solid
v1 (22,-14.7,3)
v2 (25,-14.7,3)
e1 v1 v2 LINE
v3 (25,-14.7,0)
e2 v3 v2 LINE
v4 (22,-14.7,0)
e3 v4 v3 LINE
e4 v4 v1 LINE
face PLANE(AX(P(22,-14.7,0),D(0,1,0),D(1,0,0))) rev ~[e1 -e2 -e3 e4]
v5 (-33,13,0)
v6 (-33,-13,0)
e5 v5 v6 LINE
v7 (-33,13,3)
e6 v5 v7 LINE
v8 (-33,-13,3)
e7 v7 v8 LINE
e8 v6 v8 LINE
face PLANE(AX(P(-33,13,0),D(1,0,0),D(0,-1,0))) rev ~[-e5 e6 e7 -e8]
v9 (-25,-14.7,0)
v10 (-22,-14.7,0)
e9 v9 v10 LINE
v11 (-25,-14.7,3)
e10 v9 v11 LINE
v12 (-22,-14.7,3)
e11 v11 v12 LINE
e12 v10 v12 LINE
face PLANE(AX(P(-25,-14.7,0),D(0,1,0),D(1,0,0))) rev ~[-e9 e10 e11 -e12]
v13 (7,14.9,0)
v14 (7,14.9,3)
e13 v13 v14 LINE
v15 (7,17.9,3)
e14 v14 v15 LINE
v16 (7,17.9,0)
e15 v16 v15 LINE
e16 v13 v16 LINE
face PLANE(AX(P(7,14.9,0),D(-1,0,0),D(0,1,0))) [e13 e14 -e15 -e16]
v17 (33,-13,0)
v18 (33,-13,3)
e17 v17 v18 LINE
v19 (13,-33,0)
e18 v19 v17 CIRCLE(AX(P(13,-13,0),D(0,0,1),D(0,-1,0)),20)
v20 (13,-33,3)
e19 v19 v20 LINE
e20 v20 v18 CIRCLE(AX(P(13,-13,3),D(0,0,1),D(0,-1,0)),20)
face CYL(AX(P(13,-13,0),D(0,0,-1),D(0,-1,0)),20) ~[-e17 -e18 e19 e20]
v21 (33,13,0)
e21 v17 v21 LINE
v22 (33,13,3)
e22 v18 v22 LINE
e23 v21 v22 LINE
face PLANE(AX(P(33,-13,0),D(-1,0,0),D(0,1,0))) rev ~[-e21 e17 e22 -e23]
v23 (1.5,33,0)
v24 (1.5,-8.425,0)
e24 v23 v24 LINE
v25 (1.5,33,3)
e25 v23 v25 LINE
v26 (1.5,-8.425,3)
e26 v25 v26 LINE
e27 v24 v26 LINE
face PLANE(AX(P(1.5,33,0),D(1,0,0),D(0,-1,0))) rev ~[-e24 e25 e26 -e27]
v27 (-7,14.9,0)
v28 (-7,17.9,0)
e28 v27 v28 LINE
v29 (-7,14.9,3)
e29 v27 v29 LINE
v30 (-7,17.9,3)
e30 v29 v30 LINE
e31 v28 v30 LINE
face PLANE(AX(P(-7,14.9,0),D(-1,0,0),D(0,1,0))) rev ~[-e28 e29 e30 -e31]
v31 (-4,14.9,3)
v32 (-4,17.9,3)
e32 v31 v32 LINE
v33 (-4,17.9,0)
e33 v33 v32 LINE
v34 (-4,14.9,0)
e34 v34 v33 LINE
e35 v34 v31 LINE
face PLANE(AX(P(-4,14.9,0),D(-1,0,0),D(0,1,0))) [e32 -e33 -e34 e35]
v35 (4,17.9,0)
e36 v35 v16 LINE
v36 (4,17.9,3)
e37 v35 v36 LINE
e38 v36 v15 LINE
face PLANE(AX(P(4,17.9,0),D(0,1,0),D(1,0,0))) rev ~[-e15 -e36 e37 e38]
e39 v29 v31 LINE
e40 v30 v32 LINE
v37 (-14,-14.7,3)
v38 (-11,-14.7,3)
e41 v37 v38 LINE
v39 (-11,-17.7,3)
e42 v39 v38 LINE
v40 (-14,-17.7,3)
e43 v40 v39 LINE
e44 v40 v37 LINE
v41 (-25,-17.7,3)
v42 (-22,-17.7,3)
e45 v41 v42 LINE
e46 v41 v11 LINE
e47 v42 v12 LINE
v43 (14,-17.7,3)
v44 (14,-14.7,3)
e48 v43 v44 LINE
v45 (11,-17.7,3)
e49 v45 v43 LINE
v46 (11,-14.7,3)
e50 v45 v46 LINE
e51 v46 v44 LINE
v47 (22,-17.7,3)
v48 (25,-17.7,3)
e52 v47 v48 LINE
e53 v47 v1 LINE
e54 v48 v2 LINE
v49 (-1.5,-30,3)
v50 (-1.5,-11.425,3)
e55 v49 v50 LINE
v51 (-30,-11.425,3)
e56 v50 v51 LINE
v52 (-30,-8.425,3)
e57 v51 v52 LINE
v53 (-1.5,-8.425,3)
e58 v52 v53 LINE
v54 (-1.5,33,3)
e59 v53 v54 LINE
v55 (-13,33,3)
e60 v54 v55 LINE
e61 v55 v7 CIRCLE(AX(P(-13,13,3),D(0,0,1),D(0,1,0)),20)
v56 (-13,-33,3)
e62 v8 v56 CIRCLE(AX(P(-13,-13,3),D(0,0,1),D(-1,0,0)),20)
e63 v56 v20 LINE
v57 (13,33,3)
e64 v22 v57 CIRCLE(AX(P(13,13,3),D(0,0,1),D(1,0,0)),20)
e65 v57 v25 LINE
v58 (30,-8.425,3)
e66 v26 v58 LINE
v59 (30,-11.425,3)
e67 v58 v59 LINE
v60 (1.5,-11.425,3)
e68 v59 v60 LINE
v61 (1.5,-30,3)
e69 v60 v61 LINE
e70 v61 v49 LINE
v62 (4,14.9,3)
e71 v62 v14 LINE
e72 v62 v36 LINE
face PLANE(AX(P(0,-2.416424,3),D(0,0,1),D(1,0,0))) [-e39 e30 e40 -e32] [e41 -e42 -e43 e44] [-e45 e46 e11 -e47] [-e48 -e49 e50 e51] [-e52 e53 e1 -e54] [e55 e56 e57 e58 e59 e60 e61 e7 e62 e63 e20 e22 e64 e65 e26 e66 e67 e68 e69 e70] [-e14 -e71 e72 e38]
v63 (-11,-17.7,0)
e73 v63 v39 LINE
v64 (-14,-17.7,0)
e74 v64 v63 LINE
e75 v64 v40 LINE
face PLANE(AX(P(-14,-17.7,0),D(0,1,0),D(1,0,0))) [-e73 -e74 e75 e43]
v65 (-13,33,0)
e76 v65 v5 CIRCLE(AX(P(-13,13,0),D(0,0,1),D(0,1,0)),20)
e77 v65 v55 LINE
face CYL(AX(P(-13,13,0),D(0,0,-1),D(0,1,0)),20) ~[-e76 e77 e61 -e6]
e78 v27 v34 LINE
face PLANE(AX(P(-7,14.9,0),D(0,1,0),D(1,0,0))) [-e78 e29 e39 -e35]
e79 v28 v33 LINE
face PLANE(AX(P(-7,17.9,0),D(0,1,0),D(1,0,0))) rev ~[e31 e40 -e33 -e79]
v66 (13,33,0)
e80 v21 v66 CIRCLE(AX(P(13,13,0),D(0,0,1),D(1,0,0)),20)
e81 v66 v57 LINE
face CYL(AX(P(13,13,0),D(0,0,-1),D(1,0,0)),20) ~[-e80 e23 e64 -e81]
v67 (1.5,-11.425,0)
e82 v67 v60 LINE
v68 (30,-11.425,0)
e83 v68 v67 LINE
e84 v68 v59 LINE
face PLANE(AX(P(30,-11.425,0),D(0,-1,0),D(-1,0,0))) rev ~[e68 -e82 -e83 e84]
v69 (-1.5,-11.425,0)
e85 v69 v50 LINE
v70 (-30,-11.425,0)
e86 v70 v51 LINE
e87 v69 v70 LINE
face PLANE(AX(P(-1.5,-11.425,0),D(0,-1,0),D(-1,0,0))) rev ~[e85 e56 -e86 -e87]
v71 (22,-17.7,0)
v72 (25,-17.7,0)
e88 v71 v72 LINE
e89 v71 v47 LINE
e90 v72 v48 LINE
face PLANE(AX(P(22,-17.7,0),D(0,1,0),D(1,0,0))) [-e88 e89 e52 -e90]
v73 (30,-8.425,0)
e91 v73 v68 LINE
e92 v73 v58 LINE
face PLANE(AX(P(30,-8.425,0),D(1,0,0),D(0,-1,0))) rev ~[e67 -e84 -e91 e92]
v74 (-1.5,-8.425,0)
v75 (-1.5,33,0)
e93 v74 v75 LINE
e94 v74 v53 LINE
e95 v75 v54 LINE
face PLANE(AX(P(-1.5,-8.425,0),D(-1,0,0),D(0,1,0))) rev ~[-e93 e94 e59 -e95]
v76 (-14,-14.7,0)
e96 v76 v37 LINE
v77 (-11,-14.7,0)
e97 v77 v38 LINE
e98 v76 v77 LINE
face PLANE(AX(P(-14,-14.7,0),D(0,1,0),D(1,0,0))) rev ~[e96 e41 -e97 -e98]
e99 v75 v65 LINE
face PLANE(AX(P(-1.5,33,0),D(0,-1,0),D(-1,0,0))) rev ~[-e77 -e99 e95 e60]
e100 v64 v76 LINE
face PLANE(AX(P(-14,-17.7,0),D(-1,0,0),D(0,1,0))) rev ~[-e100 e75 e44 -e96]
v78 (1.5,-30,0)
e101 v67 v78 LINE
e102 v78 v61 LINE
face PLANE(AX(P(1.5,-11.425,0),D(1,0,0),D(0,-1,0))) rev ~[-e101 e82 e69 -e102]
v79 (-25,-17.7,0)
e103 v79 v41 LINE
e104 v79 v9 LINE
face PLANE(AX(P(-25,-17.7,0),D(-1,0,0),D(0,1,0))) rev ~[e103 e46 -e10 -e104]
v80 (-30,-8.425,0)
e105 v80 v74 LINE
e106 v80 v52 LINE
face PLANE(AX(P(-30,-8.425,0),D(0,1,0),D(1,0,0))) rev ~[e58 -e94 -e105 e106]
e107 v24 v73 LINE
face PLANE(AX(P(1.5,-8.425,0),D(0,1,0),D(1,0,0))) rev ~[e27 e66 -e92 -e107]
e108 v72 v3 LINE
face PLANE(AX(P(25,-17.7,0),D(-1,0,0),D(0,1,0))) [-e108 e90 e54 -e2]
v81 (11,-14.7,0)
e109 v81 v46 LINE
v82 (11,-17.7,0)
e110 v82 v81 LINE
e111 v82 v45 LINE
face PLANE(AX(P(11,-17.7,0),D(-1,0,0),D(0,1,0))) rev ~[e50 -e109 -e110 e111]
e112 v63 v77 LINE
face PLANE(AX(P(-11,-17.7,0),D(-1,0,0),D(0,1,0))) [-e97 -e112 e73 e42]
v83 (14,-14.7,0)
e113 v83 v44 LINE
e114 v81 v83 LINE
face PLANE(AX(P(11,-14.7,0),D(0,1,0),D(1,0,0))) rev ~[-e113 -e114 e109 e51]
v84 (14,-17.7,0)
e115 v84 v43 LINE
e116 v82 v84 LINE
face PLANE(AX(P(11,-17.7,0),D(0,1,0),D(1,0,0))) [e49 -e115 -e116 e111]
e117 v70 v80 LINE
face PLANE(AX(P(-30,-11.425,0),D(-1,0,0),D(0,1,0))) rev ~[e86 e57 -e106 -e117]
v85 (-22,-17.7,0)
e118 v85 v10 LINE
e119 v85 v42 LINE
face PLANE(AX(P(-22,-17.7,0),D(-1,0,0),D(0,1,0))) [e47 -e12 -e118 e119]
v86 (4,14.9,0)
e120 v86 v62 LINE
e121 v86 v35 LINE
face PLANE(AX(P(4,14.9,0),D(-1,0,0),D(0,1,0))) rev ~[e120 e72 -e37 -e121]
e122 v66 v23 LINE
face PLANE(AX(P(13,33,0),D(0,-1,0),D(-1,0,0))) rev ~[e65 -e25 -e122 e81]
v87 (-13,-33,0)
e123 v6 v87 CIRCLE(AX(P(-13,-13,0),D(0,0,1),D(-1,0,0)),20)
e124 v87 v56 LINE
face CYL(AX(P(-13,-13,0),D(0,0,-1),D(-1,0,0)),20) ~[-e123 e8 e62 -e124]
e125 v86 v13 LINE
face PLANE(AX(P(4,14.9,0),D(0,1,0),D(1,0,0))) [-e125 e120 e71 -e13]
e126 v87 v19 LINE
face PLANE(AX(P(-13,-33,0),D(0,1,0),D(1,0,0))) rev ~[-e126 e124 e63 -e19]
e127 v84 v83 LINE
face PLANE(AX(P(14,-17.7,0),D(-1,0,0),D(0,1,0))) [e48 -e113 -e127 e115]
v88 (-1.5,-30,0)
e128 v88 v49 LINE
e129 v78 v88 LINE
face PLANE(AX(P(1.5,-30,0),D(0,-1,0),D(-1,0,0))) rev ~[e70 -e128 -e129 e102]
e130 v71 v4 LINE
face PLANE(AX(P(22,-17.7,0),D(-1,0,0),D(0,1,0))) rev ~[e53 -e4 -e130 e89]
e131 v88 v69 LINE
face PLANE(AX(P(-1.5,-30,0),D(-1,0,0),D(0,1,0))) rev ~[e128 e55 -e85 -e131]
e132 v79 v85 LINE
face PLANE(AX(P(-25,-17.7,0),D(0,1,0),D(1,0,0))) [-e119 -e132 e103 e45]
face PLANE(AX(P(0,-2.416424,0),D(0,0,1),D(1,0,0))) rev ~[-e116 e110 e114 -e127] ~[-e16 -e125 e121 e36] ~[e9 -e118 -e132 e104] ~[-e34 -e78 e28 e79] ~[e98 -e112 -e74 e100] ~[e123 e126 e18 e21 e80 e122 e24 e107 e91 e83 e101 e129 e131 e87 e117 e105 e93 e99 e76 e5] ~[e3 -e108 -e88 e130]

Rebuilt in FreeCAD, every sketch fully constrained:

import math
import FreeCAD as App
import Part
import Sketcher

doc = App.newDocument("Part")
body = doc.addObject("PartDesign::Body", "Body")

sketch1 = body.newObject("Sketcher::SketchObject", "Sketch")
sketch1.AttachmentSupport = (doc.getObject("XY_Plane"), [""])
sketch1.MapMode = "FlatFace"
sketch1.addGeometry([
    Part.LineSegment(App.Vector(-30, -11.425, 0), App.Vector(-30, -8.425, 0)),
    Part.LineSegment(App.Vector(-30, -8.425, 0), App.Vector(-1.5, -8.425, 0)),
    Part.LineSegment(App.Vector(-1.5, -8.425, 0), App.Vector(-1.5, 33, 0)),
    Part.LineSegment(App.Vector(-1.5, 33, 0), App.Vector(-13, 33, 0)),
    Part.ArcOfCircle(Part.Circle(App.Vector(-13, 13, 0), App.Vector(0, 0, 1), 20), math.radians(90), math.radians(180)),
    Part.LineSegment(App.Vector(-33, 13, 0), App.Vector(-33, -13, 0)),
    Part.ArcOfCircle(Part.Circle(App.Vector(-13, -13, 0), App.Vector(0, 0, 1), 20), math.radians(180), math.radians(270)),
    Part.LineSegment(App.Vector(-13, -33, 0), App.Vector(13, -33, 0)),
    Part.ArcOfCircle(Part.Circle(App.Vector(13, -13, 0), App.Vector(0, 0, 1), 20), math.radians(-90), math.radians(0)),
    Part.LineSegment(App.Vector(33, -13, 0), App.Vector(33, 13, 0)),
    Part.ArcOfCircle(Part.Circle(App.Vector(13, 13, 0), App.Vector(0, 0, 1), 20), math.radians(0), math.radians(90)),
    Part.LineSegment(App.Vector(13, 33, 0), App.Vector(1.5, 33, 0)),
    Part.LineSegment(App.Vector(1.5, 33, 0), App.Vector(1.5, -8.425, 0)),
    Part.LineSegment(App.Vector(1.5, -8.425, 0), App.Vector(30, -8.425, 0)),
    Part.LineSegment(App.Vector(30, -8.425, 0), App.Vector(30, -11.425, 0)),
    Part.LineSegment(App.Vector(30, -11.425, 0), App.Vector(1.5, -11.425, 0)),
    Part.LineSegment(App.Vector(1.5, -11.425, 0), App.Vector(1.5, -30, 0)),
    Part.LineSegment(App.Vector(1.5, -30, 0), App.Vector(-1.5, -30, 0)),
    Part.LineSegment(App.Vector(-1.5, -30, 0), App.Vector(-1.5, -11.425, 0)),
    Part.LineSegment(App.Vector(-1.5, -11.425, 0), App.Vector(-30, -11.425, 0)),
    Part.LineSegment(App.Vector(-22, -17.7, 0), App.Vector(-25, -17.7, 0)),
    Part.LineSegment(App.Vector(-25, -17.7, 0), App.Vector(-25, -14.7, 0)),
    Part.LineSegment(App.Vector(-25, -14.7, 0), App.Vector(-22, -14.7, 0)),
    Part.LineSegment(App.Vector(-22, -14.7, 0), App.Vector(-22, -17.7, 0)),
    Part.LineSegment(App.Vector(-11, -17.7, 0), App.Vector(-14, -17.7, 0)),
    Part.LineSegment(App.Vector(-14, -17.7, 0), App.Vector(-14, -14.7, 0)),
    Part.LineSegment(App.Vector(-14, -14.7, 0), App.Vector(-11, -14.7, 0)),
    Part.LineSegment(App.Vector(-11, -14.7, 0), App.Vector(-11, -17.7, 0)),
    Part.LineSegment(App.Vector(14, -17.7, 0), App.Vector(11, -17.7, 0)),
    Part.LineSegment(App.Vector(11, -17.7, 0), App.Vector(11, -14.7, 0)),
    Part.LineSegment(App.Vector(11, -14.7, 0), App.Vector(14, -14.7, 0)),
    Part.LineSegment(App.Vector(14, -14.7, 0), App.Vector(14, -17.7, 0)),
    Part.LineSegment(App.Vector(25, -17.7, 0), App.Vector(22, -17.7, 0)),
    Part.LineSegment(App.Vector(22, -17.7, 0), App.Vector(22, -14.7, 0)),
    Part.LineSegment(App.Vector(22, -14.7, 0), App.Vector(25, -14.7, 0)),
    Part.LineSegment(App.Vector(25, -14.7, 0), App.Vector(25, -17.7, 0)),
    Part.LineSegment(App.Vector(-4, 14.9, 0), App.Vector(-7, 14.9, 0)),
    Part.LineSegment(App.Vector(-7, 14.9, 0), App.Vector(-7, 17.9, 0)),
    Part.LineSegment(App.Vector(-7, 17.9, 0), App.Vector(-4, 17.9, 0)),
    Part.LineSegment(App.Vector(-4, 17.9, 0), App.Vector(-4, 14.9, 0)),
    Part.LineSegment(App.Vector(7, 14.9, 0), App.Vector(4, 14.9, 0)),
    Part.LineSegment(App.Vector(4, 14.9, 0), App.Vector(4, 17.9, 0)),
    Part.LineSegment(App.Vector(4, 17.9, 0), App.Vector(7, 17.9, 0)),
    Part.LineSegment(App.Vector(7, 17.9, 0), App.Vector(7, 14.9, 0)),
], False)
sketch1.addConstraint([
    Sketcher.Constraint("Coincident", 0, 2, 1, 1),
    Sketcher.Constraint("Coincident", 1, 2, 2, 1),
    Sketcher.Constraint("Coincident", 2, 2, 3, 1),
    Sketcher.Constraint("Tangent", 3, 2, 4, 1),
    Sketcher.Constraint("Tangent", 4, 2, 5, 1),
    Sketcher.Constraint("Tangent", 5, 2, 6, 1),
    Sketcher.Constraint("Tangent", 6, 2, 7, 1),
    Sketcher.Constraint("Tangent", 7, 2, 8, 1),
    Sketcher.Constraint("Tangent", 8, 2, 9, 1),
    Sketcher.Constraint("Tangent", 9, 2, 10, 1),
    Sketcher.Constraint("Tangent", 10, 2, 11, 1),
    Sketcher.Constraint("Coincident", 11, 2, 12, 1),
    Sketcher.Constraint("Coincident", 12, 2, 13, 1),
    Sketcher.Constraint("Coincident", 13, 2, 14, 1),
    Sketcher.Constraint("Coincident", 14, 2, 15, 1),
    Sketcher.Constraint("Coincident", 15, 2, 16, 1),
    Sketcher.Constraint("Coincident", 16, 2, 17, 1),
    Sketcher.Constraint("Coincident", 17, 2, 18, 1),
    Sketcher.Constraint("Coincident", 18, 2, 19, 1),
    Sketcher.Constraint("Coincident", 19, 2, 0, 1),
    Sketcher.Constraint("Coincident", 20, 2, 21, 1),
    Sketcher.Constraint("Coincident", 21, 2, 22, 1),
    Sketcher.Constraint("Coincident", 22, 2, 23, 1),
    Sketcher.Constraint("Coincident", 23, 2, 20, 1),
    Sketcher.Constraint("Coincident", 24, 2, 25, 1),
    Sketcher.Constraint("Coincident", 25, 2, 26, 1),
    Sketcher.Constraint("Coincident", 26, 2, 27, 1),
    Sketcher.Constraint("Coincident", 27, 2, 24, 1),
    Sketcher.Constraint("Coincident", 28, 2, 29, 1),
    Sketcher.Constraint("Coincident", 29, 2, 30, 1),
    Sketcher.Constraint("Coincident", 30, 2, 31, 1),
    Sketcher.Constraint("Coincident", 31, 2, 28, 1),
    Sketcher.Constraint("Coincident", 32, 2, 33, 1),
    Sketcher.Constraint("Coincident", 33, 2, 34, 1),
    Sketcher.Constraint("Coincident", 34, 2, 35, 1),
    Sketcher.Constraint("Coincident", 35, 2, 32, 1),
    Sketcher.Constraint("Coincident", 36, 2, 37, 1),
    Sketcher.Constraint("Coincident", 37, 2, 38, 1),
    Sketcher.Constraint("Coincident", 38, 2, 39, 1),
    Sketcher.Constraint("Coincident", 39, 2, 36, 1),
    Sketcher.Constraint("Coincident", 40, 2, 41, 1),
    Sketcher.Constraint("Coincident", 41, 2, 42, 1),
    Sketcher.Constraint("Coincident", 42, 2, 43, 1),
    Sketcher.Constraint("Coincident", 43, 2, 40, 1),
    Sketcher.Constraint("Vertical", 0),
    Sketcher.Constraint("Horizontal", 1),
    Sketcher.Constraint("Vertical", 2),
    Sketcher.Constraint("Horizontal", 3),
    Sketcher.Constraint("Vertical", 5),
    Sketcher.Constraint("Horizontal", 7),
    Sketcher.Constraint("Vertical", 9),
    Sketcher.Constraint("Horizontal", 11),
    Sketcher.Constraint("Vertical", 12),
    Sketcher.Constraint("Horizontal", 13),
    Sketcher.Constraint("Vertical", 14),
    Sketcher.Constraint("Horizontal", 15),
    Sketcher.Constraint("Vertical", 16),
    Sketcher.Constraint("Horizontal", 17),
    Sketcher.Constraint("Vertical", 18),
    Sketcher.Constraint("Horizontal", 19),
    Sketcher.Constraint("Horizontal", 20),
    Sketcher.Constraint("Vertical", 21),
    Sketcher.Constraint("Horizontal", 22),
    Sketcher.Constraint("Vertical", 23),
    Sketcher.Constraint("Horizontal", 24),
    Sketcher.Constraint("Vertical", 25),
    Sketcher.Constraint("Horizontal", 26),
    Sketcher.Constraint("Vertical", 27),
    Sketcher.Constraint("Horizontal", 28),
    Sketcher.Constraint("Vertical", 29),
    Sketcher.Constraint("Horizontal", 30),
    Sketcher.Constraint("Vertical", 31),
    Sketcher.Constraint("Horizontal", 32),
    Sketcher.Constraint("Vertical", 33),
    Sketcher.Constraint("Horizontal", 34),
    Sketcher.Constraint("Vertical", 35),
    Sketcher.Constraint("Horizontal", 36),
    Sketcher.Constraint("Vertical", 37),
    Sketcher.Constraint("Horizontal", 38),
    Sketcher.Constraint("Vertical", 39),
    Sketcher.Constraint("Horizontal", 40),
    Sketcher.Constraint("Vertical", 41),
    Sketcher.Constraint("Horizontal", 42),
    Sketcher.Constraint("Vertical", 43),
    Sketcher.Constraint("Equal", 4, 6),
    Sketcher.Constraint("Equal", 6, 8),
    Sketcher.Constraint("Equal", 8, 10),
    Sketcher.Constraint("Symmetric", 4, 3, 8, 3, -1, 1),
    Sketcher.Constraint("Symmetric", 2, 2, 11, 2, -2),
    Sketcher.Constraint("Symmetric", 0, 2, 13, 2, -2),
    Sketcher.Constraint("Symmetric", 15, 2, 18, 2, -2),
    Sketcher.Constraint("Symmetric", 27, 2, 28, 2, -2),
    Sketcher.Constraint("Symmetric", 25, 2, 30, 2, -2),
    Sketcher.Constraint("Symmetric", 23, 2, 32, 2, -2),
    Sketcher.Constraint("Symmetric", 21, 2, 34, 2, -2),
    Sketcher.Constraint("Symmetric", 39, 2, 40, 2, -2),
    Sketcher.Constraint("Symmetric", 37, 2, 42, 2, -2),
    Sketcher.Constraint("Horizontal", 23, 2, 24, 2),
    Sketcher.Constraint("Horizontal", 22, 2, 25, 2),
    Sketcher.Constraint("Vertical", 12, 2, 15, 2),
    Sketcher.Constraint("Equal", 17, 20),
    Sketcher.Constraint("Equal", 22, 24),
    Sketcher.Constraint("Equal", 34, 36),
    Sketcher.Constraint("Equal", 42, 0),
    Sketcher.Constraint("Equal", 7, 5),
    Sketcher.Constraint("Equal", 14, 21),
    Sketcher.Constraint("Equal", 35, 37),
    Sketcher.Constraint("Radius", 4, 20.0),
    Sketcher.Constraint("DistanceX", 7, 1, 7, 2, 26.0),
    Sketcher.Constraint("DistanceX", 17, 2, 17, 1, 3.0),
    Sketcher.Constraint("DistanceX", 1, 1, 1, 2, 28.5),
    Sketcher.Constraint("DistanceY", 16, 2, -1, 1, 30.0),
    Sketcher.Constraint("DistanceX", 20, 2, -1, 1, 25.0),
    Sketcher.Constraint("DistanceX", 24, 2, -1, 1, 14.0),
    Sketcher.Constraint("DistanceX", 36, 2, -1, 1, 7.0),
    Sketcher.Constraint("DistanceY", 20, 2, -1, 1, 17.7),
    Sketcher.Constraint("DistanceY", -1, 1, 36, 2, 14.9),
    Sketcher.Constraint("DistanceY", 2, 1, 2, 2, 41.425),
])
pad1 = body.newObject("PartDesign::Pad", "Pad")
pad1.Profile = sketch1
pad1.Length = 3

doc.recompute()
